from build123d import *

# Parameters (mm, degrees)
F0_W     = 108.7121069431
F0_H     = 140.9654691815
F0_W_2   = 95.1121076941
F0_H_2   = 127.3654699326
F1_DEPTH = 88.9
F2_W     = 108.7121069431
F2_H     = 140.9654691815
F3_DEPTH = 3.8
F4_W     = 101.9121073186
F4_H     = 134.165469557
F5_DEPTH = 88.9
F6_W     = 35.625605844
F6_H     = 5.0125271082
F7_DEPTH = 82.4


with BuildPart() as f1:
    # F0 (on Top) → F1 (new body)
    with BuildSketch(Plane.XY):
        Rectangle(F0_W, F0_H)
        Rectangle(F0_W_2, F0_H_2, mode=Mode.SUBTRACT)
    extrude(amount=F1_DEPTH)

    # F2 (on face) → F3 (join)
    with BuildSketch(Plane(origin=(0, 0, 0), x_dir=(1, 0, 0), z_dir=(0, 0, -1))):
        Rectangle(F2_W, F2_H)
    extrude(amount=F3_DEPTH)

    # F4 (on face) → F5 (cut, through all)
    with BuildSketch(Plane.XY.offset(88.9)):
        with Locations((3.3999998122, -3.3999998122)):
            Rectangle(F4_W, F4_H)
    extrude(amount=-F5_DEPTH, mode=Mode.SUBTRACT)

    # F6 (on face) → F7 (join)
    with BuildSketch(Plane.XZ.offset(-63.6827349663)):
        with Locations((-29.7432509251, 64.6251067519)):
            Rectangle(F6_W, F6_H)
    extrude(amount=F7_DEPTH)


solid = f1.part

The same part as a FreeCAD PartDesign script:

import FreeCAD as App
import Part
import Sketcher
Q = App.Units.Quantity

doc = App.newDocument("Part")
body = doc.addObject("PartDesign::Body", "Body")

# Sketch on XY plane
sketch1 = doc.addObject("Sketcher::SketchObject", "Sketch")
body.addObject(sketch1)
sketch1.AttachmentSupport = (doc.XY_Plane, [""])
sketch1.MapMode = "FlatFace"
sketch1.addGeometry(Part.LineSegment(App.Vector(-54, 70, 0), App.Vector(-54, -70, 0)), False)
sketch1.addGeometry(Part.LineSegment(App.Vector(-54, -70, 0), App.Vector(54, -70, 0)), False)
sketch1.addGeometry(Part.LineSegment(App.Vector(54, -70, 0), App.Vector(54, 70, 0)), False)
sketch1.addGeometry(Part.LineSegment(App.Vector(54, 70, 0), App.Vector(-54, 70, 0)), False)
sketch1.addGeometry(Part.LineSegment(App.Vector(48, -64, 0), App.Vector(-48, -64, 0)), False)
sketch1.addGeometry(Part.LineSegment(App.Vector(-48, -64, 0), App.Vector(-48, 64, 0)), False)
sketch1.addGeometry(Part.LineSegment(App.Vector(-48, 64, 0), App.Vector(48, 64, 0)), False)
sketch1.addGeometry(Part.LineSegment(App.Vector(48, 64, 0), App.Vector(48, -64, 0)), False)
sketch1.addConstraint(Sketcher.Constraint("Coincident", 0, 2, 1, 1))
sketch1.addConstraint(Sketcher.Constraint("Coincident", 1, 2, 2, 1))
sketch1.addConstraint(Sketcher.Constraint("Coincident", 2, 2, 3, 1))
sketch1.addConstraint(Sketcher.Constraint("Coincident", 3, 2, 0, 1))
sketch1.addConstraint(Sketcher.Constraint("Coincident", 4, 2, 5, 1))
sketch1.addConstraint(Sketcher.Constraint("Coincident", 5, 2, 6, 1))
sketch1.addConstraint(Sketcher.Constraint("Coincident", 6, 2, 7, 1))
sketch1.addConstraint(Sketcher.Constraint("Coincident", 7, 2, 4, 1))
sketch1.addConstraint(Sketcher.Constraint("Vertical", 0))
sketch1.addConstraint(Sketcher.Constraint("Horizontal", 1))
sketch1.addConstraint(Sketcher.Constraint("Vertical", 2))
sketch1.addConstraint(Sketcher.Constraint("Horizontal", 3))
sketch1.addConstraint(Sketcher.Constraint("Horizontal", 4))
sketch1.addConstraint(Sketcher.Constraint("Vertical", 5))
sketch1.addConstraint(Sketcher.Constraint("Horizontal", 6))
sketch1.addConstraint(Sketcher.Constraint("Vertical", 7))
sketch1.addConstraint(Sketcher.Constraint("Symmetric", 0, 2, 2, 2, -1, 1))
sketch1.addConstraint(Sketcher.Constraint("Symmetric", 4, 2, 6, 2, -1, 1))
sketch1.addConstraint(Sketcher.Constraint("DistanceX", 0, 2, 4, 2, Q("6.8 mm")))
sketch1.addConstraint(Sketcher.Constraint("DistanceY", 0, 2, 4, 2, Q("6.8 mm")))
sketch1.addConstraint(Sketcher.Constraint("DistanceY", 0, 2, 0, 1, Q("140.965469 mm")))
sketch1.addConstraint(Sketcher.Constraint("DistanceX", 1, 1, 1, 2, Q("108.712107 mm")))
pad1 = doc.addObject("PartDesign::Pad", "Pad")
body.addObject(pad1)
pad1.Profile = sketch1
pad1.Length = 88.9

# Sketch on XY plane
sketch2 = doc.addObject("Sketcher::SketchObject", "Sketch001")
body.addObject(sketch2)
sketch2.AttachmentSupport = (doc.XY_Plane, [""])
sketch2.MapMode = "FlatFace"
sketch2.addGeometry(Part.LineSegment(App.Vector(-54, -70, 0), App.Vector(-54, 70, 0)), False)
sketch2.addGeometry(Part.LineSegment(App.Vector(-54, 70, 0), App.Vector(54, 70, 0)), False)
sketch2.addGeometry(Part.LineSegment(App.Vector(54, 70, 0), App.Vector(54, -70, 0)), False)
sketch2.addGeometry(Part.LineSegment(App.Vector(54, -70, 0), App.Vector(-54, -70, 0)), False)
sketch2.addConstraint(Sketcher.Constraint("Coincident", 0, 2, 1, 1))
sketch2.addConstraint(Sketcher.Constraint("Coincident", 1, 2, 2, 1))
sketch2.addConstraint(Sketcher.Constraint("Coincident", 2, 2, 3, 1))
sketch2.addConstraint(Sketcher.Constraint("Coincident", 3, 2, 0, 1))
sketch2.addConstraint(Sketcher.Constraint("Vertical", 0))
sketch2.addConstraint(Sketcher.Constraint("Horizontal", 1))
sketch2.addConstraint(Sketcher.Constraint("Vertical", 2))
sketch2.addConstraint(Sketcher.Constraint("Horizontal", 3))
sketch2.addConstraint(Sketcher.Constraint("Symmetric", 0, 2, 2, 2, -1, 1))
sketch2.addConstraint(Sketcher.Constraint("DistanceY", 0, 1, 0, 2, Q("140.965469 mm")))
sketch2.addConstraint(Sketcher.Constraint("DistanceX", 1, 1, 1, 2, Q("108.712107 mm")))
pad2 = doc.addObject("PartDesign::Pad", "Pad001")
body.addObject(pad2)
pad2.Profile = sketch2
pad2.Length = 3.8
pad2.Reversed = True

# Sketch on XY plane
sketch3 = doc.addObject("Sketcher::SketchObject", "Sketch002")
body.addObject(sketch3)
sketch3.AttachmentSupport = (doc.XY_Plane, [""])
sketch3.MapMode = "FlatFace"
sketch3.AttachmentOffset = App.Placement(App.Vector(0, 0, 88.9), App.Rotation())
sketch3.addGeometry(Part.LineSegment(App.Vector(-48, 64, 0), App.Vector(-48, -70, 0)), False)
sketch3.addGeometry(Part.LineSegment(App.Vector(-48, -70, 0), App.Vector(54, -70, 0)), False)
sketch3.addGeometry(Part.LineSegment(App.Vector(54, -70, 0), App.Vector(54, 64, 0)), False)
sketch3.addGeometry(Part.LineSegment(App.Vector(54, 64, 0), App.Vector(-48, 64, 0)), False)
sketch3.addConstraint(Sketcher.Constraint("Coincident", 0, 2, 1, 1))
sketch3.addConstraint(Sketcher.Constraint("Coincident", 1, 2, 2, 1))
sketch3.addConstraint(Sketcher.Constraint("Coincident", 2, 2, 3, 1))
sketch3.addConstraint(Sketcher.Constraint("Coincident", 3, 2, 0, 1))
sketch3.addConstraint(Sketcher.Constraint("Vertical", 0))
sketch3.addConstraint(Sketcher.Constraint("Horizontal", 1))
sketch3.addConstraint(Sketcher.Constraint("Vertical", 2))
sketch3.addConstraint(Sketcher.Constraint("Horizontal", 3))
sketch3.addConstraint(Sketcher.Constraint("DistanceY", 0, 2, 0, 1, Q("134.16547 mm")))
sketch3.addConstraint(Sketcher.Constraint("DistanceX", 1, 1, 1, 2, Q("101.912107 mm")))
sketch3.addConstraint(Sketcher.Constraint("DistanceX", 0, 2, -1, 1, Q("47.556054 mm")))
sketch3.addConstraint(Sketcher.Constraint("DistanceY", 0, 2, -1, 1, Q("70.482735 mm")))
pocket1 = doc.addObject("PartDesign::Pocket", "Pocket")
body.addObject(pocket1)
pocket1.Profile = sketch3
pocket1.Length = 88.9

# Sketch on XZ plane
sketch4 = doc.addObject("Sketcher::SketchObject", "Sketch003")
body.addObject(sketch4)
sketch4.AttachmentSupport = (doc.XZ_Plane, [""])
sketch4.MapMode = "FlatFace"
sketch4.AttachmentOffset = App.Placement(App.Vector(0, 0, -63.682735), App.Rotation())
sketch4.addGeometry(Part.LineSegment(App.Vector(-48, 67, 0), App.Vector(-48, 62, 0)), False)
sketch4.addGeometry(Part.LineSegment(App.Vector(-48, 62, 0), App.Vector(-12, 62, 0)), False)
sketch4.addGeometry(Part.LineSegment(App.Vector(-12, 62, 0), App.Vector(-12, 67, 0)), False)
sketch4.addGeometry(Part.LineSegment(App.Vector(-12, 67, 0), App.Vector(-48, 67, 0)), False)
sketch4.addConstraint(Sketcher.Constraint("Coincident", 0, 2, 1, 1))
sketch4.addConstraint(Sketcher.Constraint("Coincident", 1, 2, 2, 1))
sketch4.addConstraint(Sketcher.Constraint("Coincident", 2, 2, 3, 1))
sketch4.addConstraint(Sketcher.Constraint("Coincident", 3, 2, 0, 1))
sketch4.addConstraint(Sketcher.Constraint("Vertical", 0))
sketch4.addConstraint(Sketcher.Constraint("Horizontal", 1))
sketch4.addConstraint(Sketcher.Constraint("Vertical", 2))
sketch4.addConstraint(Sketcher.Constraint("Horizontal", 3))
sketch4.addConstraint(Sketcher.Constraint("DistanceX", 1, 1, 1, 2, Q("35.625606 mm")))
sketch4.addConstraint(Sketcher.Constraint("DistanceY", 0, 2, 0, 1, Q("5.012527 mm")))
sketch4.addConstraint(Sketcher.Constraint("DistanceX", 1, 2, -1, 1, Q("11.930448 mm")))
sketch4.addConstraint(Sketcher.Constraint("DistanceY", -1, 1, 2, 2, Q("67.13137 mm")))
pad3 = doc.addObject("PartDesign::Pad", "Pad002")
body.addObject(pad3)
pad3.Profile = sketch4
pad3.Length = 82.4

doc.recompute()
